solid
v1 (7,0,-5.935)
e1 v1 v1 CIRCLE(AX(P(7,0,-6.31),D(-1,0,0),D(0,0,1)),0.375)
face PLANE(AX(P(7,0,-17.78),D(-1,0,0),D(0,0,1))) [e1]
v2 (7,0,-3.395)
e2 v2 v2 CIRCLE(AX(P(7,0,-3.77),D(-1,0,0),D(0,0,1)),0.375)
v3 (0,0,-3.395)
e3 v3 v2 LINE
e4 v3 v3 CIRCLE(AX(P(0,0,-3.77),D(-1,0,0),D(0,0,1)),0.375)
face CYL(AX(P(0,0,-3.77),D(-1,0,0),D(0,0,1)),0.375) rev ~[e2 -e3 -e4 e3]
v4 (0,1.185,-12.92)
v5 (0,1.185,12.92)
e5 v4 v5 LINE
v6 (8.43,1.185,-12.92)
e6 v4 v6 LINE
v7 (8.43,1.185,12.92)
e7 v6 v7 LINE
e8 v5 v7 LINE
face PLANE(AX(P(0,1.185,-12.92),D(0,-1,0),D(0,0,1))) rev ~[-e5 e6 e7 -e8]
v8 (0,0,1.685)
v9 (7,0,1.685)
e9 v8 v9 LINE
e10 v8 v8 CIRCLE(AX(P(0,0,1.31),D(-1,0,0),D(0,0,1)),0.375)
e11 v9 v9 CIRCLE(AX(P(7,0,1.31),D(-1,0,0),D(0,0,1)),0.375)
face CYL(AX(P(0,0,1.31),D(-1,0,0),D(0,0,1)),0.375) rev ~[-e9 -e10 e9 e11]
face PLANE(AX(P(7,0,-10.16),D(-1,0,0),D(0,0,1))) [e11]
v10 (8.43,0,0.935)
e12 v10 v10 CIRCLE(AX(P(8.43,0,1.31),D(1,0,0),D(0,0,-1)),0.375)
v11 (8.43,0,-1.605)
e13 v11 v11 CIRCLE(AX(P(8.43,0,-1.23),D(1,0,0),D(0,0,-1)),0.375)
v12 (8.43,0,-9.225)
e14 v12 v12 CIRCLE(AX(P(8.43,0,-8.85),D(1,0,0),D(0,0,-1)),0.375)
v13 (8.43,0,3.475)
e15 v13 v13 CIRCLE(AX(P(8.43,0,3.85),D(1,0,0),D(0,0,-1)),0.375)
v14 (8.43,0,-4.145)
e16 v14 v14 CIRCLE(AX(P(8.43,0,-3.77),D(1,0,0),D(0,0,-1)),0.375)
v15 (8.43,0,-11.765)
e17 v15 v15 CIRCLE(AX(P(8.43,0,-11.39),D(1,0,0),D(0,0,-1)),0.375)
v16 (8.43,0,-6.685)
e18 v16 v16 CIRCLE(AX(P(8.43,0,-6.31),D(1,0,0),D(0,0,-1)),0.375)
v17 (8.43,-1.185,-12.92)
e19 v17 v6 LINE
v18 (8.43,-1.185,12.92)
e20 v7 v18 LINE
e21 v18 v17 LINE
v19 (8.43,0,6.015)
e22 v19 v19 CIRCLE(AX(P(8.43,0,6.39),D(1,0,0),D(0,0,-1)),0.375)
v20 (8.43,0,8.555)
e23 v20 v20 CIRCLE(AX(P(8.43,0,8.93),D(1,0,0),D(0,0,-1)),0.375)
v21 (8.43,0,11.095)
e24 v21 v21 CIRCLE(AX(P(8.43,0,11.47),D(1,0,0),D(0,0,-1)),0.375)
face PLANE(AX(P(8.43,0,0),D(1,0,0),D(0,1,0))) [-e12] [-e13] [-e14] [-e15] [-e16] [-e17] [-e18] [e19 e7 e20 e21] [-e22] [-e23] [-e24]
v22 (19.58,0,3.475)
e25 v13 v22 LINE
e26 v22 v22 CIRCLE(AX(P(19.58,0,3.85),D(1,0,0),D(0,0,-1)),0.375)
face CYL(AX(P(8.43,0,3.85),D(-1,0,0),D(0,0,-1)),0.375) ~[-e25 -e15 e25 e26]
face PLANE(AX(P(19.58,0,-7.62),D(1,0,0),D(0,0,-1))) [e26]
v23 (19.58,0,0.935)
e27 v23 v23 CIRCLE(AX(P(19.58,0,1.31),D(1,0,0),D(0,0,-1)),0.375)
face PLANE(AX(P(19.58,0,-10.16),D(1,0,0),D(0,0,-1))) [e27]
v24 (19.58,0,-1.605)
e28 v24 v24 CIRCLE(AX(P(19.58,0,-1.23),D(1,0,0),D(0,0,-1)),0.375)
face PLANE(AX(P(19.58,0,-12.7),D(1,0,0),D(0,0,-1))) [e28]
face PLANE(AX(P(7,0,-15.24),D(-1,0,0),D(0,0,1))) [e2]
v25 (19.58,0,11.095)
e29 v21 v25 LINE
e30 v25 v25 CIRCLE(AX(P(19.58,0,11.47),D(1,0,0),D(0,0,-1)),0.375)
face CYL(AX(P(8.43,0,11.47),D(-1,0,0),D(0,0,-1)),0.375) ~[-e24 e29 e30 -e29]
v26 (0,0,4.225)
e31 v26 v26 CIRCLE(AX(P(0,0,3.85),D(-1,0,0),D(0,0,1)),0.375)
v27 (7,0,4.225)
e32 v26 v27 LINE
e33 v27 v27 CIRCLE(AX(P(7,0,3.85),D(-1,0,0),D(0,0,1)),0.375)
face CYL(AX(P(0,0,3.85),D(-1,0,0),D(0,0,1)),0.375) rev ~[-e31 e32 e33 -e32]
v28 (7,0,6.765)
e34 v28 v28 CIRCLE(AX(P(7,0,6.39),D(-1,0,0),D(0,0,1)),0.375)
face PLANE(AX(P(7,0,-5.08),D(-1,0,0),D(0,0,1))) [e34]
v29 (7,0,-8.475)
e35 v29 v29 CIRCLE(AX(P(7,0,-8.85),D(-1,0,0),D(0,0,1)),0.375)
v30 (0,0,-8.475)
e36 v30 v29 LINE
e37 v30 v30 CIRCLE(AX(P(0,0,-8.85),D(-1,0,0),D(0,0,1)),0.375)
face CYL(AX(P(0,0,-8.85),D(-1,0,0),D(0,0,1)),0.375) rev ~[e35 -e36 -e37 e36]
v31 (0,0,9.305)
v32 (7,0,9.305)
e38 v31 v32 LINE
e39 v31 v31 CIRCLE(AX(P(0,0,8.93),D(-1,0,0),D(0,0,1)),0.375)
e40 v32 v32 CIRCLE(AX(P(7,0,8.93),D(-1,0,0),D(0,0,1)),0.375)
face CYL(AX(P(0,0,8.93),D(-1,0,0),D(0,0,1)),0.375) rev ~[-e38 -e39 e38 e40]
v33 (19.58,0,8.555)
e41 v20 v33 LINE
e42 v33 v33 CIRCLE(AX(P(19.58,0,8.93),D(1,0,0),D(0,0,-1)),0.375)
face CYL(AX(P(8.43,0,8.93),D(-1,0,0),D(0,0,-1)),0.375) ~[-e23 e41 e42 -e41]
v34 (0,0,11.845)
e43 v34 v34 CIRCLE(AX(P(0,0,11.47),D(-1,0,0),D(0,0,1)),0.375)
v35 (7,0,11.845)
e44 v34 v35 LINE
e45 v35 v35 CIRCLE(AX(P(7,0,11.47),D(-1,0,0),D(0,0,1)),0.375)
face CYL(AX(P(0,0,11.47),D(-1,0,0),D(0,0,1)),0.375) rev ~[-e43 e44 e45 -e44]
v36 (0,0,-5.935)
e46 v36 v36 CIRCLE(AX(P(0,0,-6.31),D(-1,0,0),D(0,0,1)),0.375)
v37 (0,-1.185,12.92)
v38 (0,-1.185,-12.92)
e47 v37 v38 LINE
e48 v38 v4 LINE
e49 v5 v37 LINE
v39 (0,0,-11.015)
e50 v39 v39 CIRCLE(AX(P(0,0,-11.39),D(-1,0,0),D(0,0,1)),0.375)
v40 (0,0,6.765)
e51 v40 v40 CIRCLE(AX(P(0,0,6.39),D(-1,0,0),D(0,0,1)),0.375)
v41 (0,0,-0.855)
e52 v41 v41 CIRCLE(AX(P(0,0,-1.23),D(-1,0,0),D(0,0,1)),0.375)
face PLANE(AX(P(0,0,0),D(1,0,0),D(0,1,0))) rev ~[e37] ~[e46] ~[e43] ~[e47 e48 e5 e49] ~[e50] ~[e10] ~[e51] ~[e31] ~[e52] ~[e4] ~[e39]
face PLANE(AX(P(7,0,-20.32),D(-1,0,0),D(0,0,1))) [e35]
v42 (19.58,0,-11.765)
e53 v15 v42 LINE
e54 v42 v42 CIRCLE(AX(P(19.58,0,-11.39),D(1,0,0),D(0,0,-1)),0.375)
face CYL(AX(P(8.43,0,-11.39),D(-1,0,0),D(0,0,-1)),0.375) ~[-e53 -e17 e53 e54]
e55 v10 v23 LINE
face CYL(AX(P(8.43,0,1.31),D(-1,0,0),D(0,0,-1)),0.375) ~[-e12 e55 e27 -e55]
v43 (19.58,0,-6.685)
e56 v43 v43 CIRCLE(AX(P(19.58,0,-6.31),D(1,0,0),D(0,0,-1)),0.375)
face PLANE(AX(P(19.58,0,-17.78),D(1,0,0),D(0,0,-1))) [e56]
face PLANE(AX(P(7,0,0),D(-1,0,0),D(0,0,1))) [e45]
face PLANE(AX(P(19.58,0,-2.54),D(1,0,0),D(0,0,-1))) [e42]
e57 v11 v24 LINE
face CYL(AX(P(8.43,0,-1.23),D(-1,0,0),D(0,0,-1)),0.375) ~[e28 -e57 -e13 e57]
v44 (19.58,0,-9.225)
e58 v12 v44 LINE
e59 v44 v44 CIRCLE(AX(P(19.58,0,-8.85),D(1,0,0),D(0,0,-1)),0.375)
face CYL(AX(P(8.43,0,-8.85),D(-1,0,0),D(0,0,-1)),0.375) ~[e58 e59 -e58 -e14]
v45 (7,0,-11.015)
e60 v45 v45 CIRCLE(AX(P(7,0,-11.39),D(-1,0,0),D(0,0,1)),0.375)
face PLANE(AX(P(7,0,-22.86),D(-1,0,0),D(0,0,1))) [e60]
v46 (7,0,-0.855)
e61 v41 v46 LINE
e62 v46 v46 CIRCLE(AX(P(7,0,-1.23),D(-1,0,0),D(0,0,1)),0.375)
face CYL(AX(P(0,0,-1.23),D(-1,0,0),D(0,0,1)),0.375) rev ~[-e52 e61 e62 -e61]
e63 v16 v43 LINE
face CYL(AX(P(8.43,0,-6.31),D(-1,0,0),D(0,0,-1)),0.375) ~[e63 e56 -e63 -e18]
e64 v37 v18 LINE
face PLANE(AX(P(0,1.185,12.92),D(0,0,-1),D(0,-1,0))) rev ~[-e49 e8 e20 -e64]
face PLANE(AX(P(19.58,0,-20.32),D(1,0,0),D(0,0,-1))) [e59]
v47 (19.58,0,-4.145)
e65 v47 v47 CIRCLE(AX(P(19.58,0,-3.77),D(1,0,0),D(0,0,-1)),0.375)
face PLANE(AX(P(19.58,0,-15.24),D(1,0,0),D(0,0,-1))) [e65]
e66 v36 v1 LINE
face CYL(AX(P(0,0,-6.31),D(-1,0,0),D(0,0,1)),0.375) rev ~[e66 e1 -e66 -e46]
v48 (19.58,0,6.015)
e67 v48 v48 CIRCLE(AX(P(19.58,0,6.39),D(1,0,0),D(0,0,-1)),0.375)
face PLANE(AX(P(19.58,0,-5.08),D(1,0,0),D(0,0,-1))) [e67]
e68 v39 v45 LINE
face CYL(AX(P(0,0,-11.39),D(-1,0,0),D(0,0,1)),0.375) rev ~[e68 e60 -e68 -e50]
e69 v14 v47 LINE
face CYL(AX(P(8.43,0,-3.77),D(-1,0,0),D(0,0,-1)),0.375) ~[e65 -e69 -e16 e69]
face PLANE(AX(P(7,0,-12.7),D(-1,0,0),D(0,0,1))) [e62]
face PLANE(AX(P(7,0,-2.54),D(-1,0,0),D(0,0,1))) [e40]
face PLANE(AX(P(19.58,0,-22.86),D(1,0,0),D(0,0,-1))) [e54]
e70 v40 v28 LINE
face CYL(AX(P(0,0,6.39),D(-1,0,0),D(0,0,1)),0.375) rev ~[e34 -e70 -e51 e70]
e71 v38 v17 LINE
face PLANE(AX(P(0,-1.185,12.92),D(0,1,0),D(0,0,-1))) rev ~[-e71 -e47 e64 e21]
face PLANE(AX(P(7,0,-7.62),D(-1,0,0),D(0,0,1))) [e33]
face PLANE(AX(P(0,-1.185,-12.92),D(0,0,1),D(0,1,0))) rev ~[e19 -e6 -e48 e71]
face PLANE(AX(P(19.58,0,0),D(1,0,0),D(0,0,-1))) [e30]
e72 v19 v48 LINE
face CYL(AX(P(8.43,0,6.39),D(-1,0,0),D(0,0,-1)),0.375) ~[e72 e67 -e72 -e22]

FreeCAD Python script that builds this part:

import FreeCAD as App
import Part
import Sketcher
from FreeCAD import Vector


def add_polygon(sketch, points):
    """Adds a closed chain of lines whose ends are joined by coincident constraints."""
    first, n = sketch.GeometryCount, len(points)
    for a, b in zip(points, points[1:] + points[:1]):
        sketch.addGeometry(Part.LineSegment(App.Vector(*a, 0), App.Vector(*b, 0)), False)
    for i in range(n):
        sketch.addConstraint(Sketcher.Constraint("Coincident", first + i, 2, first + (i + 1) % n, 1))

doc = App.newDocument("Part")
body = doc.addObject("PartDesign::Body", "Body")

# Sketch on YZ plane
sketch1 = body.newObject("Sketcher::SketchObject", "Sketch")
sketch1.AttachmentSupport = (doc.getObject("YZ_Plane"), [""])
sketch1.MapMode = "FlatFace"
add_polygon(sketch1, [(-1.2, 12.9), (-1.2, -12.9), (1.2, -12.9), (1.2, 12.9)])  # lines 0-3
sketch1.addConstraint(Sketcher.Constraint("Vertical", 0))
sketch1.addConstraint(Sketcher.Constraint("Horizontal", 1))
sketch1.addConstraint(Sketcher.Constraint("Vertical", 2))
sketch1.addConstraint(Sketcher.Constraint("Horizontal", 3))
sketch1.addConstraint(Sketcher.Constraint("Symmetric", 0, 2, 2, 2, -1, 1))
sketch1.addConstraint(Sketcher.Constraint("DistanceX", 1, 1, 1, 2, 2.37))
sketch1.addConstraint(Sketcher.Constraint("DistanceY", 0, 2, 0, 1, 25.84))
pad1 = body.newObject("PartDesign::Pad", "Pad")
pad1.Profile = sketch1
pad1.Length = 8.43

# Sketch on YZ plane
sketch2 = body.newObject("Sketcher::SketchObject", "Sketch001")
sketch2.AttachmentSupport = (doc.getObject("YZ_Plane"), [""])
sketch2.MapMode = "FlatFace"
sketch2.AttachmentOffset = App.Placement(Vector(0, 0, 8.43), App.Rotation())
sketch2.addGeometry(Part.Circle(Vector(0, 11.47, 0), Vector(0, 0, 1), 0.38), False)
sketch2.addConstraint(Sketcher.Constraint("PointOnObject", 0, 3, -2))
sketch2.addConstraint(Sketcher.Constraint("Diameter", 0, 0.75))
sketch2.addConstraint(Sketcher.Constraint("DistanceY", -1, 1, 0, 3, 11.47))
pad2 = body.newObject("PartDesign::Pad", "Pad001")
pad2.Profile = sketch2
pad2.Length = 11.15

# Sketch on YZ plane
sketch3 = body.newObject("Sketcher::SketchObject", "Sketch002")
sketch3.AttachmentSupport = (doc.getObject("YZ_Plane"), [""])
sketch3.MapMode = "FlatFace"
sketch3.addGeometry(Part.Circle(Vector(0, 11.47, 0), Vector(0, 0, 1), 0.38), False)
sketch3.addConstraint(Sketcher.Constraint("PointOnObject", 0, 3, -2))
sketch3.addConstraint(Sketcher.Constraint("Diameter", 0, 0.75))
sketch3.addConstraint(Sketcher.Constraint("DistanceY", -1, 1, 0, 3, 11.47))
pocket1 = body.newObject("PartDesign::Pocket", "Pocket")
pocket1.Profile = sketch3
pocket1.Length = 7
pocket1.Reversed = True
doc.recompute()

linearpattern = body.newObject("PartDesign::LinearPattern", "LinearPattern")
linearpattern.Originals = [pad2, pocket1]
linearpattern.Direction = (doc.getObject("Z_Axis"), [""])
linearpattern.Mode = "offset"
linearpattern.Offset = 2.54
linearpattern.Occurrences = 10
linearpattern.Reversed = True
body.Tip = linearpattern

doc.recompute()
